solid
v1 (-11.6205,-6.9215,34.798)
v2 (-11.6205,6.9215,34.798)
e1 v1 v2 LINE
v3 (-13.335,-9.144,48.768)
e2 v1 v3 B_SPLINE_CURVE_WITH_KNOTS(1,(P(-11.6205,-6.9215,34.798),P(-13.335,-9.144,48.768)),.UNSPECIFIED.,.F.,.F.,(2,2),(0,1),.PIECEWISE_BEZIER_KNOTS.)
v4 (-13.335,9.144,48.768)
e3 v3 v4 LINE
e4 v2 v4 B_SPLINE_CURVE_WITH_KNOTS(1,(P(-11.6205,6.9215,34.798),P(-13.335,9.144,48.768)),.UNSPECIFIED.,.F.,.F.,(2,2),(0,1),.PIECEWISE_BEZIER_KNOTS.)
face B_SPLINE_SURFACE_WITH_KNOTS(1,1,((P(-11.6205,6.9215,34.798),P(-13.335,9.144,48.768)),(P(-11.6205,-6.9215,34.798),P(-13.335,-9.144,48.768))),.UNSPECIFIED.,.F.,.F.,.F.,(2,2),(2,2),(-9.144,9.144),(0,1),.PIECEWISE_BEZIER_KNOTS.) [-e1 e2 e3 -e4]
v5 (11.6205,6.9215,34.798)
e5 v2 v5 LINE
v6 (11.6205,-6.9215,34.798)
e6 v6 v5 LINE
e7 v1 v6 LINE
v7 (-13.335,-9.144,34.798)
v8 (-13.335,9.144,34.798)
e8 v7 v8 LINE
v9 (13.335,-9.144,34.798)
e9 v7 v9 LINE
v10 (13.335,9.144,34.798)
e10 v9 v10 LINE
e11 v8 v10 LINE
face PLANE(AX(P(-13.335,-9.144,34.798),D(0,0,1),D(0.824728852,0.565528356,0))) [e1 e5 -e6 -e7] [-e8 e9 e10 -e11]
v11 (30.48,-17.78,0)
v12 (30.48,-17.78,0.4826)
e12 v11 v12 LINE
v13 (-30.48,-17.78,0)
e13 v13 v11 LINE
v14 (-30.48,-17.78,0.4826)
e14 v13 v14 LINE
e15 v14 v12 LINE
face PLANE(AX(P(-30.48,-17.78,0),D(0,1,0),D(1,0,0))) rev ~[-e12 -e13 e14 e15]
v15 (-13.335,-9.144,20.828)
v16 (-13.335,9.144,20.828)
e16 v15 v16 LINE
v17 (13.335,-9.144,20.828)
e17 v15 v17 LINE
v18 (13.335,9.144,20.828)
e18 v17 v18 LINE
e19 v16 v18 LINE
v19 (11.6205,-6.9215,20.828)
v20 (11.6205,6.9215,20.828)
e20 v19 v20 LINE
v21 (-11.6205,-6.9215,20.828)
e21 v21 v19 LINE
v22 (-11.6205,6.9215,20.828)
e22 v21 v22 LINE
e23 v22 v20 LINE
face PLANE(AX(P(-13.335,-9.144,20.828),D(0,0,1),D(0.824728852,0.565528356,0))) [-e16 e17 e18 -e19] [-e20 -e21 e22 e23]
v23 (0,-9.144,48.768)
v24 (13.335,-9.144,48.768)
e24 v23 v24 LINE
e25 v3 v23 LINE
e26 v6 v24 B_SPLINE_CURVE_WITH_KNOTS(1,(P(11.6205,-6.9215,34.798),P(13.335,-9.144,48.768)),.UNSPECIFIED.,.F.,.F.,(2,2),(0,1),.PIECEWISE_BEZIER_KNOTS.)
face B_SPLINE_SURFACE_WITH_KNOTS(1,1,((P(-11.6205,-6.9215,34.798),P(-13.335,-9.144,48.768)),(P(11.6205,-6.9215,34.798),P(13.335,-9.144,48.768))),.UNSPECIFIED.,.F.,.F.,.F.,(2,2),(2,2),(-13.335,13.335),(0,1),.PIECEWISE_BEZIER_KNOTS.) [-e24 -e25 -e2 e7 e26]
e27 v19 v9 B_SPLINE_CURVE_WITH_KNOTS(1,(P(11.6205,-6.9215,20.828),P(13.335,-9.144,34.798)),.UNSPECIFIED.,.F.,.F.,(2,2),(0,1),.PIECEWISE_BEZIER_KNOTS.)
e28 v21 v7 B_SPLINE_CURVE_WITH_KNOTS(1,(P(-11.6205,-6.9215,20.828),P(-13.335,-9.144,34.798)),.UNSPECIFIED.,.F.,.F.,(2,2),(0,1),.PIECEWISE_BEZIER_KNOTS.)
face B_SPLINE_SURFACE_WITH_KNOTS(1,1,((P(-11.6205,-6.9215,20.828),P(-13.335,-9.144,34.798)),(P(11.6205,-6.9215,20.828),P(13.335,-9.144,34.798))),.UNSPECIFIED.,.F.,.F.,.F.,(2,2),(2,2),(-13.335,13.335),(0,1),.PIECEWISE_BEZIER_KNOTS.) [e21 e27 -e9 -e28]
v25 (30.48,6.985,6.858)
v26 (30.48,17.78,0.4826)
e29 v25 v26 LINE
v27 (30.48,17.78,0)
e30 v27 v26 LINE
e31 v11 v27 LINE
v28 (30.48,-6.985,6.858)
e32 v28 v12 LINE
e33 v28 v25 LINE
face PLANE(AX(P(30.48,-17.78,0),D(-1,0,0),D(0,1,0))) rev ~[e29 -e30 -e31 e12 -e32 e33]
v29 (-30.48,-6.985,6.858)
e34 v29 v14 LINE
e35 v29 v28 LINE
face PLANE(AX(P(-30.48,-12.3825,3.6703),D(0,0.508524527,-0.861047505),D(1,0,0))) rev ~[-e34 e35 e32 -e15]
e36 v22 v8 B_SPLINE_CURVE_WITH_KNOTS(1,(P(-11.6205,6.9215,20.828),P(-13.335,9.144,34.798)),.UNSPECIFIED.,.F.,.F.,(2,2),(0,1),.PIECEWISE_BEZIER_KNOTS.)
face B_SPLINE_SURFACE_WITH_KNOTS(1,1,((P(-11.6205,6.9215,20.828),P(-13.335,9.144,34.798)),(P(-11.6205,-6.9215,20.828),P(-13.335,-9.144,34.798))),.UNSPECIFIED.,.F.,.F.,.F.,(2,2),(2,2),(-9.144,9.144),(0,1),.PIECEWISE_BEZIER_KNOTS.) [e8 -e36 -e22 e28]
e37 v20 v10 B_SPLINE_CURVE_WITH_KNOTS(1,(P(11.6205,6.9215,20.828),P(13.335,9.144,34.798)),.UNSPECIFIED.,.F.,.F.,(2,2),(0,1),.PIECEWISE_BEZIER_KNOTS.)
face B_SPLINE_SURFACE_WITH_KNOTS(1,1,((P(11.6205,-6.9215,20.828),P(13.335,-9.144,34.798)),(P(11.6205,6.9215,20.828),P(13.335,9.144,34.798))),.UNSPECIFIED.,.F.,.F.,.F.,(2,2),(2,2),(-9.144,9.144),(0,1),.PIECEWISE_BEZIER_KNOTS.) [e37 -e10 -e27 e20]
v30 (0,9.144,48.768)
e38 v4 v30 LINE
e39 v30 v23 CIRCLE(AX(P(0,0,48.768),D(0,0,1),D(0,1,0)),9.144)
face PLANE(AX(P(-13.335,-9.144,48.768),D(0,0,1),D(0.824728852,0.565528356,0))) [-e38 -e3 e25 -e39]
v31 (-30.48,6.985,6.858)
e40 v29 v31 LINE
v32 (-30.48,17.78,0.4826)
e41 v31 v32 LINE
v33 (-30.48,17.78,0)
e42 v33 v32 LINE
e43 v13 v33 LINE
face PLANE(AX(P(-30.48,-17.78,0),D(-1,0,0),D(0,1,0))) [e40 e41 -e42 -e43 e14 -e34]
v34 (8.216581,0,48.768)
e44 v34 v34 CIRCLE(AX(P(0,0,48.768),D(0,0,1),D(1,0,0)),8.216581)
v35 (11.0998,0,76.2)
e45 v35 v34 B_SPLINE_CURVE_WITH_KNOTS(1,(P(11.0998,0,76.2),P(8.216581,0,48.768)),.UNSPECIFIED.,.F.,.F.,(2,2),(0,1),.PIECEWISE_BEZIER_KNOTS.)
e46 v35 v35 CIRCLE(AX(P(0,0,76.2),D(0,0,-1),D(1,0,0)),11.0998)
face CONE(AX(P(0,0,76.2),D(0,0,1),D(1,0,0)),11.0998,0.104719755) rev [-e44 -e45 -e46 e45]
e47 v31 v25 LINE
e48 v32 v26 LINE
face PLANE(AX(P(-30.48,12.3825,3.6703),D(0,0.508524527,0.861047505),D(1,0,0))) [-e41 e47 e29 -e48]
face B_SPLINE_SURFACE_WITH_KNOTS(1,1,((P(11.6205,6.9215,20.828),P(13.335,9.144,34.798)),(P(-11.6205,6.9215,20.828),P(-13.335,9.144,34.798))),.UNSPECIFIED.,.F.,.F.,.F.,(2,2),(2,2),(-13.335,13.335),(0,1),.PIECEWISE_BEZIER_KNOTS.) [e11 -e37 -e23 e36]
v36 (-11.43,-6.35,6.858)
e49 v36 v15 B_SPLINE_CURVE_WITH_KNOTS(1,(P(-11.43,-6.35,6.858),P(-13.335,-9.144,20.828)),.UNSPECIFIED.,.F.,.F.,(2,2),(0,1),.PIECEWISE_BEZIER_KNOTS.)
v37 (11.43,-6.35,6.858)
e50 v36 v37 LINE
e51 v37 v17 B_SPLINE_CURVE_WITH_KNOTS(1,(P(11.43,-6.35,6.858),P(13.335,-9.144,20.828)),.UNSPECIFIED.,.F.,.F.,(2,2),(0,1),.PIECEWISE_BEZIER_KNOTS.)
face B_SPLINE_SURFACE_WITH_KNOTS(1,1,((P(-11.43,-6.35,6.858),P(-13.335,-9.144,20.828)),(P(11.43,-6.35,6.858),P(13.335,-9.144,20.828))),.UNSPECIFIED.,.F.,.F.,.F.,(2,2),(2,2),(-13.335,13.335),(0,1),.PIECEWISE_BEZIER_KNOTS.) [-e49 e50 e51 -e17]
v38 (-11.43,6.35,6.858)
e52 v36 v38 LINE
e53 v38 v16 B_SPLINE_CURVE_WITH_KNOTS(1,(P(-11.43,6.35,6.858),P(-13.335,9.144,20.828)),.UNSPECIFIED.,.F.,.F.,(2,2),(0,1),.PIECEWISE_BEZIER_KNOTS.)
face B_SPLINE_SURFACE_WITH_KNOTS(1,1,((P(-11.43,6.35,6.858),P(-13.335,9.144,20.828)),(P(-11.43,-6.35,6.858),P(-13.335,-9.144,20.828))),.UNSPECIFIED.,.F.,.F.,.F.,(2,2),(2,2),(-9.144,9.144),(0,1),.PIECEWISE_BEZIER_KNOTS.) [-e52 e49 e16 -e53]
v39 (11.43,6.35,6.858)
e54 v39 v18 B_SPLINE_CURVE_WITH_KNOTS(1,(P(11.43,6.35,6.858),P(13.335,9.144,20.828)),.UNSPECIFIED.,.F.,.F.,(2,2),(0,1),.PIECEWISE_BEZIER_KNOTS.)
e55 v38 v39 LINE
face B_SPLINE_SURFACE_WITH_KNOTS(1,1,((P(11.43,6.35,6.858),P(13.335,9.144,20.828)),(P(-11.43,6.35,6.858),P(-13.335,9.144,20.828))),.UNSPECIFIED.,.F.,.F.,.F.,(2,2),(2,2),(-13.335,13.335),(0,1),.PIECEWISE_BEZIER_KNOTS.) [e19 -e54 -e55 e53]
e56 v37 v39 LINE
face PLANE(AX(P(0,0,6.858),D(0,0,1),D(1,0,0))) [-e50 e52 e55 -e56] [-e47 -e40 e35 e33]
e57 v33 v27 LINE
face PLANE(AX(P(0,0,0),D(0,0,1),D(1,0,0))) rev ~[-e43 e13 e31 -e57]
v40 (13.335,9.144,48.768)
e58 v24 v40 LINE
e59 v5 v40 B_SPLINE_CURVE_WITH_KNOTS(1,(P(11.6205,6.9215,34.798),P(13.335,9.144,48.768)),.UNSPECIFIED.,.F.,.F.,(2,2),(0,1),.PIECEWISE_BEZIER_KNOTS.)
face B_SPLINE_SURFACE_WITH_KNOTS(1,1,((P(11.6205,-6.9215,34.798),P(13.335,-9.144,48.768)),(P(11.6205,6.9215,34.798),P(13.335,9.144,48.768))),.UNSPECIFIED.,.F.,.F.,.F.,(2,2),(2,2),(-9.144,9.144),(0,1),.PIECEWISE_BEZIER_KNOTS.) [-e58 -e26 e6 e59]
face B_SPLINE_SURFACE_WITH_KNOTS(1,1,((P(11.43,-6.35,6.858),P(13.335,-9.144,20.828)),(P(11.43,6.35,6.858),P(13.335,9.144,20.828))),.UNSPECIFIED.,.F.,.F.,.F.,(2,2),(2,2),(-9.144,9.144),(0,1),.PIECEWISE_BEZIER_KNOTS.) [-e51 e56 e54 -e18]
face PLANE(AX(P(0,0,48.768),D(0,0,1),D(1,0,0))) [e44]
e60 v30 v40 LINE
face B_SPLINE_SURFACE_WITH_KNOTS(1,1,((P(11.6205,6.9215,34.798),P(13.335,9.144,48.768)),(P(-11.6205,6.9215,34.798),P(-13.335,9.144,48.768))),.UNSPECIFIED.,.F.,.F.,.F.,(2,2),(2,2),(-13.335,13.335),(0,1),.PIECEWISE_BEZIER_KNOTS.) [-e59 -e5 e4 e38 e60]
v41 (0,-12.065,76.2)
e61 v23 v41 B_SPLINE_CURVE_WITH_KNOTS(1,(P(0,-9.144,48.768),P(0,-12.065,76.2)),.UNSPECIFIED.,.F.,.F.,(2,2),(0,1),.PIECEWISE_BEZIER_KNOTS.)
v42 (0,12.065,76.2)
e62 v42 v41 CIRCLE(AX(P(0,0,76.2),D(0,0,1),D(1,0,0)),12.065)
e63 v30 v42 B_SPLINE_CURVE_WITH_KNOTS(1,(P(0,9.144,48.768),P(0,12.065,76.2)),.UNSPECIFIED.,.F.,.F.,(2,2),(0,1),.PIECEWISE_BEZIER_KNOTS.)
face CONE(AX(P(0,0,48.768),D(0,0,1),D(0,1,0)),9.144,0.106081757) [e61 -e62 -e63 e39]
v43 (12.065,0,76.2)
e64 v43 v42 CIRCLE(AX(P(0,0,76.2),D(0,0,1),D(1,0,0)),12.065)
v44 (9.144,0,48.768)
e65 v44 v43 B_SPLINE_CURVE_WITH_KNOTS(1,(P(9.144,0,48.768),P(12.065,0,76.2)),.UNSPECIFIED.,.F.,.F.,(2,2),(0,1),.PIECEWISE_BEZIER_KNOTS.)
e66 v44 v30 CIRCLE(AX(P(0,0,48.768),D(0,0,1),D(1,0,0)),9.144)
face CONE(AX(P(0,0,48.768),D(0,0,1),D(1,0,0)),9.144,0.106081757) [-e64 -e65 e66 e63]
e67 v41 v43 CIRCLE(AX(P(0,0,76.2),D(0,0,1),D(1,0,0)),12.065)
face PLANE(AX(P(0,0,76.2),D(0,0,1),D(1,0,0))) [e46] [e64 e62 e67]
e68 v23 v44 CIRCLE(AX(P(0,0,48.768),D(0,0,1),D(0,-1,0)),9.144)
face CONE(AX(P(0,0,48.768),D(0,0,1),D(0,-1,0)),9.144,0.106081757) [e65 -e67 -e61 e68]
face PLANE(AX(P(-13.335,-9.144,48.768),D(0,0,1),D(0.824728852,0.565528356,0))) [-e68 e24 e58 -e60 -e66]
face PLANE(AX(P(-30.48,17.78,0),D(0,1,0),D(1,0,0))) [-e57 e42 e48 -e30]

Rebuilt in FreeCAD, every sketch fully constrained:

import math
import FreeCAD as App
import Part
import Sketcher
from FreeCAD import Vector
Q = App.Units.Quantity


def edges_at(feature, points):
    """Names of the edges that pass closest to the given points."""
    edges = feature.Shape.Edges
    near = lambda p: min(range(len(edges)), key=lambda i: edges[i].distToShape(Part.Vertex(*p))[0])
    return sorted({f"Edge{near(p) + 1}" for p in points})


def add_polygon(sketch, points):
    """Adds a closed chain of lines whose ends are joined by coincident constraints."""
    first, n = sketch.GeometryCount, len(points)
    for a, b in zip(points, points[1:] + points[:1]):
        sketch.addGeometry(Part.LineSegment(App.Vector(*a, 0), App.Vector(*b, 0)), False)
    for i in range(n):
        sketch.addConstraint(Sketcher.Constraint("Coincident", first + i, 2, first + (i + 1) % n, 1))

doc = App.newDocument("Part")
body = doc.addObject("PartDesign::Body", "Body")

# Sketch on XY plane
sketch1 = body.newObject("Sketcher::SketchObject", "Sketch")
sketch1.AttachmentSupport = (doc.getObject("XY_Plane"), [""])
sketch1.MapMode = "FlatFace"
add_polygon(sketch1, [(-30.48, 17.78), (-30.48, -17.78), (30.48, -17.78), (30.48, 17.78)])  # lines 0-3
sketch1.addConstraint(Sketcher.Constraint("Vertical", 0))
sketch1.addConstraint(Sketcher.Constraint("Horizontal", 1))
sketch1.addConstraint(Sketcher.Constraint("Vertical", 2))
sketch1.addConstraint(Sketcher.Constraint("Horizontal", 3))
sketch1.addConstraint(Sketcher.Constraint("Symmetric", 0, 2, 2, 2, -1, 1))
sketch1.addConstraint(Sketcher.Constraint("DistanceX", 1, 1, 1, 2, Q("2.4 in")))
sketch1.addConstraint(Sketcher.Constraint("DistanceY", 0, 2, 0, 1, Q("1.4 in")))
pad1 = body.newObject("PartDesign::Pad", "Pad")
pad1.Profile = sketch1
pad1.Length = Q("0.27 in")
doc.recompute()

chamfer = body.newObject("PartDesign::Chamfer", "Chamfer")
chamfer.Base = (pad1, edges_at(pad1, [(0, 17.78, 6.858), (0, -17.78, 6.858)]))
chamfer.ChamferType = "Two distances"
chamfer.Size = Q("0.425 in")
chamfer.Size2 = Q("0.251 in")
chamfer.FlipDirection = True

# Sketch on XY plane
sketch2 = body.newObject("Sketcher::SketchObject", "Sketch001")
sketch2.AttachmentSupport = (doc.getObject("XY_Plane"), [""])
sketch2.MapMode = "FlatFace"
sketch2.AttachmentOffset = App.Placement(Vector(0, 0, 0.27 * 25.4), App.Rotation())
add_polygon(sketch2, [(-11.43, 6.35), (-11.43, -6.35), (11.43, -6.35), (11.43, 6.35)])  # lines 0-3
sketch2.addConstraint(Sketcher.Constraint("Vertical", 0))
sketch2.addConstraint(Sketcher.Constraint("Horizontal", 1))
sketch2.addConstraint(Sketcher.Constraint("Vertical", 2))
sketch2.addConstraint(Sketcher.Constraint("Horizontal", 3))
sketch2.addConstraint(Sketcher.Constraint("Symmetric", 0, 2, 2, 2, -1, 1))
sketch2.addConstraint(Sketcher.Constraint("DistanceX", 1, 1, 1, 2, Q("0.9 in")))
sketch2.addConstraint(Sketcher.Constraint("DistanceY", 0, 2, 0, 1, Q("0.5 in")))

# Sketch on XY plane
sketch3 = body.newObject("Sketcher::SketchObject", "Sketch002")
sketch3.AttachmentSupport = (doc.getObject("XY_Plane"), [""])
sketch3.MapMode = "FlatFace"
sketch3.AttachmentOffset = App.Placement(Vector(0, 0, 0.82 * 25.4), App.Rotation())
add_polygon(sketch3, [(-13.335, 9.144), (-13.335, -9.144), (13.335, -9.144), (13.335, 9.144)])  # lines 0-3
sketch3.addConstraint(Sketcher.Constraint("Vertical", 0))
sketch3.addConstraint(Sketcher.Constraint("Horizontal", 1))
sketch3.addConstraint(Sketcher.Constraint("Vertical", 2))
sketch3.addConstraint(Sketcher.Constraint("Horizontal", 3))
sketch3.addConstraint(Sketcher.Constraint("Symmetric", 0, 2, 2, 2, -1, 1))
sketch3.addConstraint(Sketcher.Constraint("DistanceX", 1, 1, 1, 2, Q("1.05 in")))
sketch3.addConstraint(Sketcher.Constraint("DistanceY", 0, 2, 0, 1, Q("0.72 in")))

additiveloft = body.newObject("PartDesign::AdditiveLoft", "AdditiveLoft")
additiveloft.Profile = sketch2
additiveloft.Sections = [sketch3]

# Sketch on XY plane
sketch4 = body.newObject("Sketcher::SketchObject", "Sketch003")
sketch4.AttachmentSupport = (doc.getObject("XY_Plane"), [""])
sketch4.MapMode = "FlatFace"
sketch4.AttachmentOffset = App.Placement(Vector(0, 0, 0.82 * 25.4), App.Rotation())
add_polygon(sketch4, [(-11.6205, 6.9215), (-11.6205, -6.9215), (11.6205, -6.9215), (11.6205, 6.9215)])  # lines 0-3
sketch4.addConstraint(Sketcher.Constraint("Vertical", 0))
sketch4.addConstraint(Sketcher.Constraint("Horizontal", 1))
sketch4.addConstraint(Sketcher.Constraint("Vertical", 2))
sketch4.addConstraint(Sketcher.Constraint("Horizontal", 3))
sketch4.addConstraint(Sketcher.Constraint("Symmetric", 0, 2, 2, 2, -1, 1))
sketch4.addConstraint(Sketcher.Constraint("DistanceX", 1, 1, 1, 2, Q("0.915 in")))
sketch4.addConstraint(Sketcher.Constraint("DistanceY", 0, 2, 0, 1, Q("0.545 in")))

# Sketch on XY plane
sketch5 = body.newObject("Sketcher::SketchObject", "Sketch004")
sketch5.AttachmentSupport = (doc.getObject("XY_Plane"), [""])
sketch5.MapMode = "FlatFace"
sketch5.AttachmentOffset = App.Placement(Vector(0, 0, 1.37 * 25.4), App.Rotation())
add_polygon(sketch5, [(-13.335, 9.144), (-13.335, -9.144), (13.335, -9.144), (13.335, 9.144)])  # lines 0-3
sketch5.addConstraint(Sketcher.Constraint("Vertical", 0))
sketch5.addConstraint(Sketcher.Constraint("Horizontal", 1))
sketch5.addConstraint(Sketcher.Constraint("Vertical", 2))
sketch5.addConstraint(Sketcher.Constraint("Horizontal", 3))
sketch5.addConstraint(Sketcher.Constraint("Symmetric", 0, 2, 2, 2, -1, 1))
sketch5.addConstraint(Sketcher.Constraint("DistanceX", 1, 1, 1, 2, Q("1.05 in")))
sketch5.addConstraint(Sketcher.Constraint("DistanceY", 0, 2, 0, 1, Q("0.72 in")))

additiveloft2 = body.newObject("PartDesign::AdditiveLoft", "AdditiveLoft001")
additiveloft2.Profile = sketch4
additiveloft2.Sections = [sketch5]

# Sketch on XY plane
sketch6 = body.newObject("Sketcher::SketchObject", "Sketch005")
sketch6.AttachmentSupport = (doc.getObject("XY_Plane"), [""])
sketch6.MapMode = "FlatFace"
sketch6.AttachmentOffset = App.Placement(Vector(0, 0, 1.37 * 25.4), App.Rotation())
add_polygon(sketch6, [(-11.6205, 6.9215), (-11.6205, -6.9215), (11.6205, -6.9215), (11.6205, 6.9215)])  # lines 0-3
sketch6.addConstraint(Sketcher.Constraint("Vertical", 0))
sketch6.addConstraint(Sketcher.Constraint("Horizontal", 1))
sketch6.addConstraint(Sketcher.Constraint("Vertical", 2))
sketch6.addConstraint(Sketcher.Constraint("Horizontal", 3))
sketch6.addConstraint(Sketcher.Constraint("Symmetric", 0, 2, 2, 2, -1, 1))
sketch6.addConstraint(Sketcher.Constraint("DistanceX", 1, 1, 1, 2, Q("0.915 in")))
sketch6.addConstraint(Sketcher.Constraint("DistanceY", 0, 2, 0, 1, Q("0.545 in")))

# Sketch on XY plane
sketch7 = body.newObject("Sketcher::SketchObject", "Sketch006")
sketch7.AttachmentSupport = (doc.getObject("XY_Plane"), [""])
sketch7.MapMode = "FlatFace"
sketch7.AttachmentOffset = App.Placement(Vector(0, 0, 1.92 * 25.4), App.Rotation())
add_polygon(sketch7, [(-13.335, 9.144), (-13.335, -9.144), (13.335, -9.144), (13.335, 9.144)])  # lines 0-3
sketch7.addConstraint(Sketcher.Constraint("Vertical", 0))
sketch7.addConstraint(Sketcher.Constraint("Horizontal", 1))
sketch7.addConstraint(Sketcher.Constraint("Vertical", 2))
sketch7.addConstraint(Sketcher.Constraint("Horizontal", 3))
sketch7.addConstraint(Sketcher.Constraint("Symmetric", 0, 2, 2, 2, -1, 1))
sketch7.addConstraint(Sketcher.Constraint("DistanceX", 1, 1, 1, 2, Q("1.05 in")))
sketch7.addConstraint(Sketcher.Constraint("DistanceY", 0, 2, 0, 1, Q("0.72 in")))

additiveloft3 = body.newObject("PartDesign::AdditiveLoft", "AdditiveLoft002")
additiveloft3.Profile = sketch6
additiveloft3.Sections = [sketch7]

# Sketch on XY plane
sketch8 = body.newObject("Sketcher::SketchObject", "Sketch007")
sketch8.AttachmentSupport = (doc.getObject("XY_Plane"), [""])
sketch8.MapMode = "FlatFace"
sketch8.AttachmentOffset = App.Placement(Vector(0, 0, 1.92 * 25.4), App.Rotation())
sketch8.addGeometry(Part.ArcOfCircle(Part.Circle(Vector(0, 0, 0), Vector(0, 0, 1), 9.144), math.radians(90), math.radians(270)), False)
sketch8.addGeometry(Part.ArcOfCircle(Part.Circle(Vector(0, 0, 0), Vector(0, 0, 1), 9.144), math.radians(-90), math.radians(0)), False)
sketch8.addGeometry(Part.ArcOfCircle(Part.Circle(Vector(0, 0, 0), Vector(0, 0, 1), 9.144), math.radians(0), math.radians(90)), False)
sketch8.addConstraint(Sketcher.Constraint("Tangent", 0, 2, 1, 1))
sketch8.addConstraint(Sketcher.Constraint("Tangent", 1, 2, 2, 1))
sketch8.addConstraint(Sketcher.Constraint("Tangent", 2, 2, 0, 1))
sketch8.addConstraint(Sketcher.Constraint("Coincident", 0, 3, -1, 1))
sketch8.addConstraint(Sketcher.Constraint("PointOnObject", 0, 2, -2))
sketch8.addConstraint(Sketcher.Constraint("PointOnObject", 1, 2, -1))
sketch8.addConstraint(Sketcher.Constraint("PointOnObject", 2, 2, -2))
sketch8.addConstraint(Sketcher.Constraint("Radius", 0, Q("0.36 in")))

# Sketch on XY plane
sketch9 = body.newObject("Sketcher::SketchObject", "Sketch008")
sketch9.AttachmentSupport = (doc.getObject("XY_Plane"), [""])
sketch9.MapMode = "FlatFace"
sketch9.AttachmentOffset = App.Placement(Vector(0, 0, 3 * 25.4), App.Rotation())
sketch9.addGeometry(Part.Circle(Vector(0, 0, 0), Vector(0, 0, 1), 12.065), False)
sketch9.addConstraint(Sketcher.Constraint("Coincident", 0, 3, -1, 1))
sketch9.addConstraint(Sketcher.Constraint("Diameter", 0, Q("0.95 in")))

additiveloft4 = body.newObject("PartDesign::AdditiveLoft", "AdditiveLoft003")
additiveloft4.Profile = sketch8
additiveloft4.Sections = [sketch9]

# Sketch on XY plane
sketch10 = body.newObject("Sketcher::SketchObject", "Sketch009")
sketch10.AttachmentSupport = (doc.getObject("XY_Plane"), [""])
sketch10.MapMode = "FlatFace"
sketch10.AttachmentOffset = App.Placement(Vector(0, 0, 3 * 25.4), App.Rotation())
sketch10.addGeometry(Part.Circle(Vector(0, 0, 0), Vector(0, 0, 1), 11.0998), False)
sketch10.addConstraint(Sketcher.Constraint("Coincident", 0, 3, -1, 1))
sketch10.addConstraint(Sketcher.Constraint("Diameter", 0, Q("0.874 in")))
pocket1 = body.newObject("PartDesign::Pocket", "Pocket")
pocket1.Profile = sketch10
pocket1.Length = Q("1.08 in")
pocket1.TaperAngle = -6

doc.recompute()
